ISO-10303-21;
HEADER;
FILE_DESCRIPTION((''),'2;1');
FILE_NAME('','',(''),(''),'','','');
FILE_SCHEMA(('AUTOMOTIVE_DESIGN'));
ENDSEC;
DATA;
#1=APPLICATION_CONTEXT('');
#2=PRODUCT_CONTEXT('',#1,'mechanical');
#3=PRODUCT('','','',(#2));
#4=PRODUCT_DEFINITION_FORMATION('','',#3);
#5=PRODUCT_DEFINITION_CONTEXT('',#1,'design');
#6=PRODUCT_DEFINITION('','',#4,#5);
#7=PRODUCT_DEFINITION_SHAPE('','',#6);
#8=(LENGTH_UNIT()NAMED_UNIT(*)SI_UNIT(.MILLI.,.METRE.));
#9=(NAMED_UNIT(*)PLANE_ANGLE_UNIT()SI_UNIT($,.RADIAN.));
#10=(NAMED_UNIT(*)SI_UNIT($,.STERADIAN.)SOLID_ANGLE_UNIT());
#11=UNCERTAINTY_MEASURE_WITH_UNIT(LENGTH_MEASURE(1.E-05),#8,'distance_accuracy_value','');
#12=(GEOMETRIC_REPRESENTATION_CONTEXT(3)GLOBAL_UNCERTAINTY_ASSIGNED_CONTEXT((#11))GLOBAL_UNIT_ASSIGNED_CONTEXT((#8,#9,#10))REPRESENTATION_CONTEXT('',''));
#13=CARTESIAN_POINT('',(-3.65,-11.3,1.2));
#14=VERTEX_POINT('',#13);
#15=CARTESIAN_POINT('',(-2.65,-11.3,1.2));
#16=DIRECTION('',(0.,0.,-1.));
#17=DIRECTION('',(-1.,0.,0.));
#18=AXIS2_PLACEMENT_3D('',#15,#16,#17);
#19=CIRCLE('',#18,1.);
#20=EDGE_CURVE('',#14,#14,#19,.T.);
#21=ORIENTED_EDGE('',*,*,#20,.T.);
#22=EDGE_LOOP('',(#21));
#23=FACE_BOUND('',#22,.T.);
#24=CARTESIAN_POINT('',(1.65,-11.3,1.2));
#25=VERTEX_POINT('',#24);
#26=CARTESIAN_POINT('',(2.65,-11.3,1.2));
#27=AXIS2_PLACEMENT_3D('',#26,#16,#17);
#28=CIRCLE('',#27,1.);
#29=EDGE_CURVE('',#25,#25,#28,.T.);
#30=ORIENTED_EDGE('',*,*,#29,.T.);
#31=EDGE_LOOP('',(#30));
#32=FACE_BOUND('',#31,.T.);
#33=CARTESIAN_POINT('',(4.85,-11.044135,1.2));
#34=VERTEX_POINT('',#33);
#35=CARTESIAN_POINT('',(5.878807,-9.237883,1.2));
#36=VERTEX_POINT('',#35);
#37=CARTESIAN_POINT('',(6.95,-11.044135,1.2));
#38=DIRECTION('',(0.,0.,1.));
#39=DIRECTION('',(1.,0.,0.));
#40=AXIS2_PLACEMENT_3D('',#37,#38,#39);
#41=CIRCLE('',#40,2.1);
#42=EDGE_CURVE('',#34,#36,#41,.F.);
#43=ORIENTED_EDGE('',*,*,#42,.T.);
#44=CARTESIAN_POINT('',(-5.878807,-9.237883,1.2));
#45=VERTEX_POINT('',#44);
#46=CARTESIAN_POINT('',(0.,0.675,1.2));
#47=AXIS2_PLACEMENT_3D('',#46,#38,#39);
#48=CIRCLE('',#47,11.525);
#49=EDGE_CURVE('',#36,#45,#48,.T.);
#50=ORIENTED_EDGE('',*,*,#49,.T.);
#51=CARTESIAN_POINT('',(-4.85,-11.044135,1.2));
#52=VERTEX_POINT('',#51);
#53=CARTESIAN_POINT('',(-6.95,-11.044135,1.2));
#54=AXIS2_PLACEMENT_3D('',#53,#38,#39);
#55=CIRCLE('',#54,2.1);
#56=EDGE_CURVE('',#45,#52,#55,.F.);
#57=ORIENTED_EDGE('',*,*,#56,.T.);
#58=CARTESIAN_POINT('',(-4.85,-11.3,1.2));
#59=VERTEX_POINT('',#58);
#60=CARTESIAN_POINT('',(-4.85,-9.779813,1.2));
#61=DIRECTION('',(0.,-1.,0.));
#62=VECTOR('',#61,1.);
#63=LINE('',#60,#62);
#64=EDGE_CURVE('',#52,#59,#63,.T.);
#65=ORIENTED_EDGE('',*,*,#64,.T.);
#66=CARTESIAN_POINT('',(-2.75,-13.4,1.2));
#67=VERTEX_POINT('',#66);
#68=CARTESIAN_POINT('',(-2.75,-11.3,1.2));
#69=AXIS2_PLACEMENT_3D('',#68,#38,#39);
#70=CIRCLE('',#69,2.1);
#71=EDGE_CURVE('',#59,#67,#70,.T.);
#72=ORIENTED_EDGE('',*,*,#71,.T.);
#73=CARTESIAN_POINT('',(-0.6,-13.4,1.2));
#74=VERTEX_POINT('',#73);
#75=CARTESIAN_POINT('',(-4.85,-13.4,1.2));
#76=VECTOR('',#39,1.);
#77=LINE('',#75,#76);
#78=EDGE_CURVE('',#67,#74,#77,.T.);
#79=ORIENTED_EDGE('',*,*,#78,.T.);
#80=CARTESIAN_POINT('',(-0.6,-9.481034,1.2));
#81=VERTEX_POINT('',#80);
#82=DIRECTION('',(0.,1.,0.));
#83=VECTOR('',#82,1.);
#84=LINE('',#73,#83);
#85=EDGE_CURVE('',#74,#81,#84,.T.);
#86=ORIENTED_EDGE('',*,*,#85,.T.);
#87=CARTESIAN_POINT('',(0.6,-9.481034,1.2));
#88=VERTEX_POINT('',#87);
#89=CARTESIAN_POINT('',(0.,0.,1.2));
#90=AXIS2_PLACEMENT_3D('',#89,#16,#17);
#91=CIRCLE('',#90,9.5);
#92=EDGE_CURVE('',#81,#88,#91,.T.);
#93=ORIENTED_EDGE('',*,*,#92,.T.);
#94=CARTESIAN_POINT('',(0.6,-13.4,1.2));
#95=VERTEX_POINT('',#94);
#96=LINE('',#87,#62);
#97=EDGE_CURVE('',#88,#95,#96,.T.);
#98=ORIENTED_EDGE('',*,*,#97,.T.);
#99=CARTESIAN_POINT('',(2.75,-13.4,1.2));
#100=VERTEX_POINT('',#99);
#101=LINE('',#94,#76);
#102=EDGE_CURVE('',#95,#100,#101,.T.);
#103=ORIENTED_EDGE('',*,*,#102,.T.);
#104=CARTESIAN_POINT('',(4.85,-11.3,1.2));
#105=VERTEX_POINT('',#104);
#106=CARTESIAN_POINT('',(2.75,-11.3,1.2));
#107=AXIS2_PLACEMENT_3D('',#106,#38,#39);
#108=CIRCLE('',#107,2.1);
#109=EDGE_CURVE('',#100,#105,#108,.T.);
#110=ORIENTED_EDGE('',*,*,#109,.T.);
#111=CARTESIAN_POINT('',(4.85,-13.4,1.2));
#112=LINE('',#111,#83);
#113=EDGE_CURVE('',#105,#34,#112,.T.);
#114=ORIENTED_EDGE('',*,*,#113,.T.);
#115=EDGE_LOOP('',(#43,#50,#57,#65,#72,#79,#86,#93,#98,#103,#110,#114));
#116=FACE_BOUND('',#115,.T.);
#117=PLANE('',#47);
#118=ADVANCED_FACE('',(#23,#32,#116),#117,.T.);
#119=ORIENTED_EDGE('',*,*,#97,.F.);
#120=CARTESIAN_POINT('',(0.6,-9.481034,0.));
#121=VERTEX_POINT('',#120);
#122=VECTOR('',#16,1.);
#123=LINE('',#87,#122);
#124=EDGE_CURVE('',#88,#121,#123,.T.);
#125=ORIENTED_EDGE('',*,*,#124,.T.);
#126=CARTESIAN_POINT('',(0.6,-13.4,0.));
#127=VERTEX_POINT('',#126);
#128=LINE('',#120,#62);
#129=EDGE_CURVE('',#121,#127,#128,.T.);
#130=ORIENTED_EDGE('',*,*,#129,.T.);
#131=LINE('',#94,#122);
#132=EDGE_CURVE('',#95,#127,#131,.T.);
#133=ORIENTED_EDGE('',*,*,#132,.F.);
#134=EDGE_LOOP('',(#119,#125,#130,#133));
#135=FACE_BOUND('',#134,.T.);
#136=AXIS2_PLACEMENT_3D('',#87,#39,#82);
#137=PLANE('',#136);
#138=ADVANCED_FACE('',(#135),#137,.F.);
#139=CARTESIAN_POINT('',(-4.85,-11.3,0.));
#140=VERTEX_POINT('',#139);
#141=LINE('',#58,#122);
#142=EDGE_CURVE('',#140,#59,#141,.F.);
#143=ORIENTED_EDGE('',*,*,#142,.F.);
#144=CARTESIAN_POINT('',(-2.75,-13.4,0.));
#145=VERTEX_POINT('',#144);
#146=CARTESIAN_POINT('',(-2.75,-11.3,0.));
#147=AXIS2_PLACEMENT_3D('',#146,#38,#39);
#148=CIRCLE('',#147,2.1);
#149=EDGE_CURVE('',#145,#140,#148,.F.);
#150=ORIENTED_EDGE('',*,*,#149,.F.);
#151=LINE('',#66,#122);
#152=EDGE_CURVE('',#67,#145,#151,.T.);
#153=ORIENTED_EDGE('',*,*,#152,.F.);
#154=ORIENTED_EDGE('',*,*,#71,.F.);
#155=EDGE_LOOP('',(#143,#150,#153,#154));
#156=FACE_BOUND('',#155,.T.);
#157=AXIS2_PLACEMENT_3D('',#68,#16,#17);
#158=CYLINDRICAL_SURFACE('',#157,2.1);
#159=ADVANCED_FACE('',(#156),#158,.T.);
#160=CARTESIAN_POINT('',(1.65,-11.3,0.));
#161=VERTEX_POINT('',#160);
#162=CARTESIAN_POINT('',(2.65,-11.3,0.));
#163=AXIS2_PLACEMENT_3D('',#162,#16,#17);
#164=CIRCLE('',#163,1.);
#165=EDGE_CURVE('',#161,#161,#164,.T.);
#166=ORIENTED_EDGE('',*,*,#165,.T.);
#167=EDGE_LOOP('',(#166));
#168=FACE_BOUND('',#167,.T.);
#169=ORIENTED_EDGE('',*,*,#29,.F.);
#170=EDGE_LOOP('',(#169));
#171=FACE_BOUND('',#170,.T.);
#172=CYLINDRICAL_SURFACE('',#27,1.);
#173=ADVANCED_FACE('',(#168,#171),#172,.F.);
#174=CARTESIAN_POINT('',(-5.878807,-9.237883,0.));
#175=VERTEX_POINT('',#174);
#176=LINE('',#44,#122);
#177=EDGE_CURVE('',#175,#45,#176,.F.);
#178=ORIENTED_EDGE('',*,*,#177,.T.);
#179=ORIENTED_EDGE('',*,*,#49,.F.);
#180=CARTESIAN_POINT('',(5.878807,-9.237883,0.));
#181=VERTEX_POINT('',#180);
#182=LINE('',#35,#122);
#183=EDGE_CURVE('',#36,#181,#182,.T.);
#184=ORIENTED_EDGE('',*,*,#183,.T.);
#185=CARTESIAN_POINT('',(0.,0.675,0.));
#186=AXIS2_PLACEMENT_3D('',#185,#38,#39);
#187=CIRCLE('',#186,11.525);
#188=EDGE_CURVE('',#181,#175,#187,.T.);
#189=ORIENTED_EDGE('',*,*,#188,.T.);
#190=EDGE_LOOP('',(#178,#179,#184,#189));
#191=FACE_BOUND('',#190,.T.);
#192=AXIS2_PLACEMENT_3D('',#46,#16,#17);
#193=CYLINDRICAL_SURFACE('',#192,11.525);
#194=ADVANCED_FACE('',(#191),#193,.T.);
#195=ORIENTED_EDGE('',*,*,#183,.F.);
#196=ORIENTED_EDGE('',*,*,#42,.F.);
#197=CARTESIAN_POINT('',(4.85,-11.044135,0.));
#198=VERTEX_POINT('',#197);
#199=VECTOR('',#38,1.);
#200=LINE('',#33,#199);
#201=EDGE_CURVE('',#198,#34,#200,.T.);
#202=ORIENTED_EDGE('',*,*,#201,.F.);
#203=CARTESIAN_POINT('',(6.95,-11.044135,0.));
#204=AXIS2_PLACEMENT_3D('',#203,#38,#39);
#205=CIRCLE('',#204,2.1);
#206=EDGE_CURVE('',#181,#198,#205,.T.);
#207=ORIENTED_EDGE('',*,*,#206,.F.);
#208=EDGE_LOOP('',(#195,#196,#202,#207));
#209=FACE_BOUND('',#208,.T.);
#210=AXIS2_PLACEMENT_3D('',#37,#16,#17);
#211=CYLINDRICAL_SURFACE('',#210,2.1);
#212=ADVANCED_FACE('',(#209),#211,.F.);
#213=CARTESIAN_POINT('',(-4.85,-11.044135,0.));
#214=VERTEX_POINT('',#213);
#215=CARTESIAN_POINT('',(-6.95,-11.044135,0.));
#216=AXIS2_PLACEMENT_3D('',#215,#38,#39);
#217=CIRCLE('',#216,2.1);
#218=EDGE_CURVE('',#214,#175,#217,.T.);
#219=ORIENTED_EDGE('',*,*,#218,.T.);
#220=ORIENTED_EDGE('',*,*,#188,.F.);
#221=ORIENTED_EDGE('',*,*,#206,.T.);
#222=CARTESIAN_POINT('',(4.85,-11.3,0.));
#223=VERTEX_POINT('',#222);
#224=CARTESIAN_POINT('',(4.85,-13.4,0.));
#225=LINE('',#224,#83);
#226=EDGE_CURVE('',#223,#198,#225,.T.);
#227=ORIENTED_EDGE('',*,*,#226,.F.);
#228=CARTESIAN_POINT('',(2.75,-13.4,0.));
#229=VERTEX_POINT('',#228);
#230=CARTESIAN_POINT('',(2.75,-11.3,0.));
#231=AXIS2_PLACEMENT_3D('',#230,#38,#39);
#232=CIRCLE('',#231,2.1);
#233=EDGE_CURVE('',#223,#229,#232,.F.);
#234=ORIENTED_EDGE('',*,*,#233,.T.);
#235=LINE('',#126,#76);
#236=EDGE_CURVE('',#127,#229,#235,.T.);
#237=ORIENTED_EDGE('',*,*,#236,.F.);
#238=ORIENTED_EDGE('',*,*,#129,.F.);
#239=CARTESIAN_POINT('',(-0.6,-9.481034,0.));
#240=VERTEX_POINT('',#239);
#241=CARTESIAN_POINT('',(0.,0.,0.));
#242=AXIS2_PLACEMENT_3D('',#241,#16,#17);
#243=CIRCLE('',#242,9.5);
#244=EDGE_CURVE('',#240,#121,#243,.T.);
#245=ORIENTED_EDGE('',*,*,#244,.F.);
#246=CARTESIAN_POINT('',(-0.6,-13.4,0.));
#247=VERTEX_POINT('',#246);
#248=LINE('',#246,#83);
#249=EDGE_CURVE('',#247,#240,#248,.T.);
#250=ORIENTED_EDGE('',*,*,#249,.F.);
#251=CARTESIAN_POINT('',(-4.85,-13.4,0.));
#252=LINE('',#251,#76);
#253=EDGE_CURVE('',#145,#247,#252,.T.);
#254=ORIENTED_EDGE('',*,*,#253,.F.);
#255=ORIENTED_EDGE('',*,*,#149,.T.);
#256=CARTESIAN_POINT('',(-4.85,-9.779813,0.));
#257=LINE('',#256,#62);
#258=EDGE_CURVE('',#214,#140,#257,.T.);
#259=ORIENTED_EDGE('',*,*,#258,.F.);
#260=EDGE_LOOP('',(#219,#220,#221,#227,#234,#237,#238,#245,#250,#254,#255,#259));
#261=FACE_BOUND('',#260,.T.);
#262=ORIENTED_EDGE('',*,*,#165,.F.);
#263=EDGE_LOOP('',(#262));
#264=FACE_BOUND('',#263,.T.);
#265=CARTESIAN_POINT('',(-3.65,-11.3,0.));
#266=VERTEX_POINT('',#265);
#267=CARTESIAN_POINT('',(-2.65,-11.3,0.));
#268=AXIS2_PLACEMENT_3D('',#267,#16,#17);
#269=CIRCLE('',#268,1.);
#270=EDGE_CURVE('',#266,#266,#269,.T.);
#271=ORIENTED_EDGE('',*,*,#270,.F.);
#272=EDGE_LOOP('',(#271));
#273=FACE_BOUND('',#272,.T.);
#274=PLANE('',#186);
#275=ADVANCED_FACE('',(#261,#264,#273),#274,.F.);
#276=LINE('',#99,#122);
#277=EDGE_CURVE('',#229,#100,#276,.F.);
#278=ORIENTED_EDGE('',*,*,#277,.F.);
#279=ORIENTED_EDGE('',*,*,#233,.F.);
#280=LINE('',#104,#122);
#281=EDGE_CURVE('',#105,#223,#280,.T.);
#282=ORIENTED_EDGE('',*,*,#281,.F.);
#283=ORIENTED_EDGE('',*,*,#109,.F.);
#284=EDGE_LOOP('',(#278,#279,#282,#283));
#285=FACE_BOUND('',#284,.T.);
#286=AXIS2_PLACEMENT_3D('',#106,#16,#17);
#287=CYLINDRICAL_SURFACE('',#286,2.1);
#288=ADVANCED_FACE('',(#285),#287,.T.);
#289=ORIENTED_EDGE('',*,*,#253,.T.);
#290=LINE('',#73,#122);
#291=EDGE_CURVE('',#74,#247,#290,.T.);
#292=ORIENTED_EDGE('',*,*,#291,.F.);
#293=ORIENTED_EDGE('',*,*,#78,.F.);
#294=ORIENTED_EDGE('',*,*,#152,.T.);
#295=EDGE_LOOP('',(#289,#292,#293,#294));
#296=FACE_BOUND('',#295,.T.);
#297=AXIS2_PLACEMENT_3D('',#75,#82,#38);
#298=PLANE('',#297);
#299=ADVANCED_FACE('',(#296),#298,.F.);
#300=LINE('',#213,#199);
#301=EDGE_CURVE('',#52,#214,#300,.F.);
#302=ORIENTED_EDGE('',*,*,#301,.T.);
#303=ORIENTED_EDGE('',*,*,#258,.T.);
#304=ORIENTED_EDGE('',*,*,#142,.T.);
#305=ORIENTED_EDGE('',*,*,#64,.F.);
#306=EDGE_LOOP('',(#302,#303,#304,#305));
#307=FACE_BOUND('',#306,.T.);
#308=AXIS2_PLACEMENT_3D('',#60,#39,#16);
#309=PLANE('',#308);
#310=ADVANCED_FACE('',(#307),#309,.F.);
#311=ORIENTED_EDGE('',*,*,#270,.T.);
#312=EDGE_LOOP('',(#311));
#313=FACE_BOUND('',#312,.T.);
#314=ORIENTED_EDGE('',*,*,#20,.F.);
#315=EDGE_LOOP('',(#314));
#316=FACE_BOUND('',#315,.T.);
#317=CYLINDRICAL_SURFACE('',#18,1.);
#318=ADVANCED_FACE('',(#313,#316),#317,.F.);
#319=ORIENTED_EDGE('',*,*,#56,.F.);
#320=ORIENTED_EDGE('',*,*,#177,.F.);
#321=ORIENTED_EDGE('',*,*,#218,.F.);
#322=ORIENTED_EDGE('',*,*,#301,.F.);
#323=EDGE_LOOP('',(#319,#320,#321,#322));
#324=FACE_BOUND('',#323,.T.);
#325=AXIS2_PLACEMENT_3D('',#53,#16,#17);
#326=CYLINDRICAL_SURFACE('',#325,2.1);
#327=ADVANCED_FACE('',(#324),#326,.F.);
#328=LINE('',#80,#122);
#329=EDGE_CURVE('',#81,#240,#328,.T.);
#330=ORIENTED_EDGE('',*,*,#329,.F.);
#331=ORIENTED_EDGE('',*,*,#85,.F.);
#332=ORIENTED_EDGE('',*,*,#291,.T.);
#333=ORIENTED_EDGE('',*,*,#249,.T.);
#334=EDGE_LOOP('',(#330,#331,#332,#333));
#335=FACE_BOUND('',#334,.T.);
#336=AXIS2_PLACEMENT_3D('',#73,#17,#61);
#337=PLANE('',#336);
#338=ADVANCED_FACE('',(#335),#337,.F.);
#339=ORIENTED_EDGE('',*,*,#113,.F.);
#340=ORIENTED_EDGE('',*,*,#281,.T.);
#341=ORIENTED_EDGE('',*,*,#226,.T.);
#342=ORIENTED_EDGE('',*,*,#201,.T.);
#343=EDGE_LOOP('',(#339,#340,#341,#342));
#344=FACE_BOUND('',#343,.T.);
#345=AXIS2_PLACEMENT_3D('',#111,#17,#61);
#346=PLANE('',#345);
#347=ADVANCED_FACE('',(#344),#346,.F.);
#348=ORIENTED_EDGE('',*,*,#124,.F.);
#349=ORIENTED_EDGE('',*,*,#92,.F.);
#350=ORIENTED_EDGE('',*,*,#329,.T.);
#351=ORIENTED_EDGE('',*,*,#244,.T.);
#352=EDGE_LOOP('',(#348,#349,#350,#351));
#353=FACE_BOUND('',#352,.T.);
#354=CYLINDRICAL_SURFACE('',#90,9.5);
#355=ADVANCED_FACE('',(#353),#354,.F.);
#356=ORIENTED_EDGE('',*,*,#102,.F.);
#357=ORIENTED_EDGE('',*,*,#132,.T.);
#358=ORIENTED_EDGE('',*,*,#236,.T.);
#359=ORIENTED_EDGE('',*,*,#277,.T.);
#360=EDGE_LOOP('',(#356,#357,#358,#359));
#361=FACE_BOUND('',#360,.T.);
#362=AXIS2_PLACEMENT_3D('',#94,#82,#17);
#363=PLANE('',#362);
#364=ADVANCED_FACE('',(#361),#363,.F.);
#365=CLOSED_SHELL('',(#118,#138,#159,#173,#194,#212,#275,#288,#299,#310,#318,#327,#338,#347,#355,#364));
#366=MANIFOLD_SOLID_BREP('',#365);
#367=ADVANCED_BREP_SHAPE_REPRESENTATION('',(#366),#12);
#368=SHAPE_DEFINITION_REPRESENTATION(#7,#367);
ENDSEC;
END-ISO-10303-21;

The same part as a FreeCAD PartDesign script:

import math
import FreeCAD as App
import Part
import Sketcher


def edges_at(feature, points):
    """Names of the edges that pass closest to the given points."""
    edges = feature.Shape.Edges
    near = lambda p: min(range(len(edges)), key=lambda i: edges[i].distToShape(Part.Vertex(*p))[0])
    return sorted({f"Edge{near(p) + 1}" for p in points})

doc = App.newDocument("Part")
body = doc.addObject("PartDesign::Body", "Body")

# Sketch on XY plane
sketch1 = body.newObject("Sketcher::SketchObject", "Sketch")
sketch1.AttachmentSupport = (doc.getObject("XY_Plane"), [""])
sketch1.MapMode = "FlatFace"
sketch1.addGeometry(Part.LineSegment(App.Vector(-4.85, -9.779813, 0), App.Vector(-4.85, -13.4, 0)), False)
sketch1.addGeometry(Part.LineSegment(App.Vector(-4.85, -13.4, 0), App.Vector(-0.6, -13.4, 0)), False)
sketch1.addGeometry(Part.LineSegment(App.Vector(-0.6, -13.4, 0), App.Vector(-0.6, -9.481034, 0)), False)
sketch1.addGeometry(Part.ArcOfCircle(Part.Circle(App.Vector(0, 0, 0), App.Vector(0, 0, 1), 9.5), math.radians(-86.378909), math.radians(266.378909)), False)
sketch1.addGeometry(Part.LineSegment(App.Vector(0.6, -9.481034, 0), App.Vector(0.6, -13.4, 0)), False)
sketch1.addGeometry(Part.LineSegment(App.Vector(0.6, -13.4, 0), App.Vector(4.85, -13.4, 0)), False)
sketch1.addGeometry(Part.LineSegment(App.Vector(4.85, -13.4, 0), App.Vector(4.85, -9.779813, 0)), False)
sketch1.addGeometry(Part.ArcOfCircle(Part.Circle(App.Vector(0, 0.675, 0), App.Vector(0, 0, 1), 11.525), math.radians(-65.11336), math.radians(245.11336)), False)
sketch1.addConstraint(Sketcher.Constraint("Coincident", 0, 2, 1, 1))
sketch1.addConstraint(Sketcher.Constraint("Coincident", 1, 2, 2, 1))
sketch1.addConstraint(Sketcher.Constraint("Coincident", 2, 2, 3, 2))
sketch1.addConstraint(Sketcher.Constraint("Coincident", 3, 1, 4, 1))
sketch1.addConstraint(Sketcher.Constraint("Coincident", 4, 2, 5, 1))
sketch1.addConstraint(Sketcher.Constraint("Coincident", 5, 2, 6, 1))
sketch1.addConstraint(Sketcher.Constraint("Coincident", 6, 2, 7, 1))
sketch1.addConstraint(Sketcher.Constraint("Coincident", 7, 2, 0, 1))
sketch1.addConstraint(Sketcher.Constraint("Vertical", 0))
sketch1.addConstraint(Sketcher.Constraint("Horizontal", 1))
sketch1.addConstraint(Sketcher.Constraint("Vertical", 2))
sketch1.addConstraint(Sketcher.Constraint("Vertical", 4))
sketch1.addConstraint(Sketcher.Constraint("Horizontal", 5))
sketch1.addConstraint(Sketcher.Constraint("Vertical", 6))
sketch1.addConstraint(Sketcher.Constraint("Coincident", 3, 3, -1, 1))
sketch1.addConstraint(Sketcher.Constraint("Symmetric", 1, 2, 4, 2, -2))
sketch1.addConstraint(Sketcher.Constraint("Symmetric", 6, 2, 7, 2, -2))
sketch1.addConstraint(Sketcher.Constraint("Radius", 3, 9.5))
sketch1.addConstraint(Sketcher.Constraint("Radius", 7, 11.525))
sketch1.addConstraint(Sketcher.Constraint("DistanceX", 1, 1, 1, 2, 4.25))
sketch1.addConstraint(Sketcher.Constraint("DistanceY", 0, 2, -1, 1, 13.4))
sketch1.addConstraint(Sketcher.Constraint("DistanceX", 1, 2, -1, 1, 0.6))
sketch1.addConstraint(Sketcher.Constraint("DistanceY", -1, 1, 7, 3, 0.675))
pad1 = body.newObject("PartDesign::Pad", "Pad")
pad1.Profile = sketch1
pad1.Length = 1.2

# Sketch on XY plane
sketch2 = body.newObject("Sketcher::SketchObject", "Sketch001")
sketch2.AttachmentSupport = (doc.getObject("XY_Plane"), [""])
sketch2.MapMode = "FlatFace"
sketch2.addGeometry(Part.Circle(App.Vector(2.65, -11.3, 0), App.Vector(0, 0, 1), 1), False)
sketch2.addGeometry(Part.Circle(App.Vector(-2.65, -11.3, 0), App.Vector(0, 0, 1), 1), False)
sketch2.addConstraint(Sketcher.Constraint("Equal", 0, 1))
sketch2.addConstraint(Sketcher.Constraint("Symmetric", 0, 3, 1, 3, -2))
sketch2.addConstraint(Sketcher.Constraint("Diameter", 0, 2.0))
sketch2.addConstraint(Sketcher.Constraint("DistanceY", 0, 3, -1, 1, 11.3))
sketch2.addConstraint(Sketcher.Constraint("DistanceX", 1, 3, 0, 3, 5.3))
pocket1 = body.newObject("PartDesign::Pocket", "Pocket")
pocket1.Profile = sketch2
pocket1.Type = "ThroughAll"
pocket1.Reversed = True
doc.recompute()

fillet = body.newObject("PartDesign::Fillet", "Fillet")
fillet.Base = (pocket1, edges_at(pocket1, [(4.85, -9.78, 0.6), (-4.85, -9.78, 0.6)]))
fillet.Radius = 2.1
doc.recompute()

fillet2 = body.newObject("PartDesign::Fillet", "Fillet001")
fillet2.Base = (fillet, edges_at(fillet, [(4.85, -13.4, 0.6), (-4.85, -13.4, 0.6)]))
fillet2.Radius = 2.1

doc.recompute()
